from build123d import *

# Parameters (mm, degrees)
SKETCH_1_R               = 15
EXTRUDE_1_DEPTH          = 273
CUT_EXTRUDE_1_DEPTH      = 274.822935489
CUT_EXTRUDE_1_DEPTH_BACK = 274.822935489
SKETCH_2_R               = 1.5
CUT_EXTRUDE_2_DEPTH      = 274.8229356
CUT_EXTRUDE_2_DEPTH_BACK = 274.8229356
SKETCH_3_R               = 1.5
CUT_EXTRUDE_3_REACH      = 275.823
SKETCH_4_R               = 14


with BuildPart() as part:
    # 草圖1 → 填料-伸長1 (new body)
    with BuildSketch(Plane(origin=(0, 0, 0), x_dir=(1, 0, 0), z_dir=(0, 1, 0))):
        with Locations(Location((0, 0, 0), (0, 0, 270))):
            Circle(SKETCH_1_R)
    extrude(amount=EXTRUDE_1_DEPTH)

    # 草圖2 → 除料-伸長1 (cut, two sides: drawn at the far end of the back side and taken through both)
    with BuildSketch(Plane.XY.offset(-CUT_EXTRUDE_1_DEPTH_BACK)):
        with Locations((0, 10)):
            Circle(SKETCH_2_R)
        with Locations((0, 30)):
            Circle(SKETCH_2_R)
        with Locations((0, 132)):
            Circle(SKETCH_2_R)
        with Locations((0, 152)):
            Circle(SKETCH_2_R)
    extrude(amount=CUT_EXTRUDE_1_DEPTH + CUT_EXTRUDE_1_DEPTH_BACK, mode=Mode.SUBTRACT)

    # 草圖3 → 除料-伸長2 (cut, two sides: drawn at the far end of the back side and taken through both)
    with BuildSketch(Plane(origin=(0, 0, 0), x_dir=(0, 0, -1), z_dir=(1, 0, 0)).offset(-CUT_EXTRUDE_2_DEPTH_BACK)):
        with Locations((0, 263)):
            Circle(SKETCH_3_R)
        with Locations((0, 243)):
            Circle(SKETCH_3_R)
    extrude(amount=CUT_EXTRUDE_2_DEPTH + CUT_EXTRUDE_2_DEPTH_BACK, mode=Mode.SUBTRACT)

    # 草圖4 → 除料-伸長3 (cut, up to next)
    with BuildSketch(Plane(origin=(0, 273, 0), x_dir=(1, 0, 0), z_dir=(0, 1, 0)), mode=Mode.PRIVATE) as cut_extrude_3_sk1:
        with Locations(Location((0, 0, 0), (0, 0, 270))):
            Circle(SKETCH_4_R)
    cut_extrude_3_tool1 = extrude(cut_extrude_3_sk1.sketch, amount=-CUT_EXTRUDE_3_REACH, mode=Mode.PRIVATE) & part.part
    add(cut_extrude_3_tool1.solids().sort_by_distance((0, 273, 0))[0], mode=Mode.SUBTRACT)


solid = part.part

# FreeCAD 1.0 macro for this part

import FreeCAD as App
import Part
import Sketcher
Q = App.Units.Quantity

doc = App.newDocument("Part")
body = doc.addObject("PartDesign::Body", "Body")

# Sketch on XZ plane
sketch1 = doc.addObject("Sketcher::SketchObject", "Sketch")
body.addObject(sketch1)
sketch1.AttachmentSupport = (doc.XZ_Plane, [""])
sketch1.MapMode = "FlatFace"
sketch1.addGeometry(Part.Circle(App.Vector(0, 0, 0), App.Vector(0, 0, 1), 15), False)
sketch1.addConstraint([
    Sketcher.Constraint("Coincident", 0, 3, -1, 1),
    Sketcher.Constraint("Diameter", 0, Q("30 mm")),
])
pad1 = doc.addObject("PartDesign::Pad", "Pad")
body.addObject(pad1)
pad1.Profile = sketch1
pad1.Length = 273
pad1.Reversed = True

# Sketch on XY plane
sketch2 = doc.addObject("Sketcher::SketchObject", "Sketch001")
body.addObject(sketch2)
sketch2.AttachmentSupport = (doc.XY_Plane, [""])
sketch2.MapMode = "FlatFace"
sketch2.addGeometry([
    Part.Circle(App.Vector(0, 10, 0), App.Vector(0, 0, 1), 1.5),
    Part.Circle(App.Vector(0, 30, 0), App.Vector(0, 0, 1), 1.5),
    Part.Circle(App.Vector(0, 132, 0), App.Vector(0, 0, 1), 1.5),
    Part.Circle(App.Vector(0, 152, 0), App.Vector(0, 0, 1), 1.5),
], False)
sketch2.addConstraint([
    Sketcher.Constraint("Equal", 0, 1),
    Sketcher.Constraint("Equal", 1, 2),
    Sketcher.Constraint("Equal", 2, 3),
    Sketcher.Constraint("PointOnObject", 0, 3, -2),
    Sketcher.Constraint("PointOnObject", 1, 3, -2),
    Sketcher.Constraint("PointOnObject", 2, 3, -2),
    Sketcher.Constraint("PointOnObject", 3, 3, -2),
    Sketcher.Constraint("Diameter", 0, Q("3 mm")),
    Sketcher.Constraint("DistanceY", -1, 1, 0, 3, Q("10 mm")),
    Sketcher.Constraint("DistanceY", -1, 1, 1, 3, Q("30 mm")),
    Sketcher.Constraint("DistanceY", -1, 1, 2, 3, Q("132 mm")),
    Sketcher.Constraint("DistanceY", -1, 1, 3, 3, Q("152 mm")),
])
pocket1 = doc.addObject("PartDesign::Pocket", "Pocket")
body.addObject(pocket1)
pocket1.Profile = sketch2
pocket1.Type = "ThroughAll"
pocket1.Midplane = True

# Sketch on YZ plane
sketch3 = doc.addObject("Sketcher::SketchObject", "Sketch002")
body.addObject(sketch3)
sketch3.AttachmentSupport = (doc.YZ_Plane, [""])
sketch3.MapMode = "FlatFace"
sketch3.addGeometry([
    Part.Circle(App.Vector(263, 0, 0), App.Vector(0, 0, 1), 1.5),
    Part.Circle(App.Vector(243, 0, 0), App.Vector(0, 0, 1), 1.5),
], False)
sketch3.addConstraint([
    Sketcher.Constraint("Equal", 0, 1),
    Sketcher.Constraint("PointOnObject", 0, 3, -1),
    Sketcher.Constraint("PointOnObject", 1, 3, -1),
    Sketcher.Constraint("Diameter", 0, Q("3 mm")),
    Sketcher.Constraint("DistanceX", -1, 1, 0, 3, Q("263 mm")),
    Sketcher.Constraint("DistanceX", -1, 1, 1, 3, Q("243 mm")),
])
pocket2 = doc.addObject("PartDesign::Pocket", "Pocket001")
body.addObject(pocket2)
pocket2.Profile = sketch3
pocket2.Type = "ThroughAll"
pocket2.Midplane = True

# Sketch on XZ plane
sketch4 = doc.addObject("Sketcher::SketchObject", "Sketch003")
body.addObject(sketch4)
sketch4.AttachmentSupport = (doc.XZ_Plane, [""])
sketch4.MapMode = "FlatFace"
sketch4.AttachmentOffset = App.Placement(App.Vector(0, 0, -273), App.Rotation())
sketch4.addGeometry(Part.Circle(App.Vector(0, 0, 0), App.Vector(0, 0, 1), 14), False)
sketch4.addConstraint([
    Sketcher.Constraint("Coincident", 0, 3, -1, 1),
    Sketcher.Constraint("Diameter", 0, Q("28 mm")),
])
pocket3 = doc.addObject("PartDesign::Pocket", "Pocket002")
body.addObject(pocket3)
pocket3.Profile = sketch4
pocket3.Length = 273
pocket3.Reversed = True

doc.recompute()
